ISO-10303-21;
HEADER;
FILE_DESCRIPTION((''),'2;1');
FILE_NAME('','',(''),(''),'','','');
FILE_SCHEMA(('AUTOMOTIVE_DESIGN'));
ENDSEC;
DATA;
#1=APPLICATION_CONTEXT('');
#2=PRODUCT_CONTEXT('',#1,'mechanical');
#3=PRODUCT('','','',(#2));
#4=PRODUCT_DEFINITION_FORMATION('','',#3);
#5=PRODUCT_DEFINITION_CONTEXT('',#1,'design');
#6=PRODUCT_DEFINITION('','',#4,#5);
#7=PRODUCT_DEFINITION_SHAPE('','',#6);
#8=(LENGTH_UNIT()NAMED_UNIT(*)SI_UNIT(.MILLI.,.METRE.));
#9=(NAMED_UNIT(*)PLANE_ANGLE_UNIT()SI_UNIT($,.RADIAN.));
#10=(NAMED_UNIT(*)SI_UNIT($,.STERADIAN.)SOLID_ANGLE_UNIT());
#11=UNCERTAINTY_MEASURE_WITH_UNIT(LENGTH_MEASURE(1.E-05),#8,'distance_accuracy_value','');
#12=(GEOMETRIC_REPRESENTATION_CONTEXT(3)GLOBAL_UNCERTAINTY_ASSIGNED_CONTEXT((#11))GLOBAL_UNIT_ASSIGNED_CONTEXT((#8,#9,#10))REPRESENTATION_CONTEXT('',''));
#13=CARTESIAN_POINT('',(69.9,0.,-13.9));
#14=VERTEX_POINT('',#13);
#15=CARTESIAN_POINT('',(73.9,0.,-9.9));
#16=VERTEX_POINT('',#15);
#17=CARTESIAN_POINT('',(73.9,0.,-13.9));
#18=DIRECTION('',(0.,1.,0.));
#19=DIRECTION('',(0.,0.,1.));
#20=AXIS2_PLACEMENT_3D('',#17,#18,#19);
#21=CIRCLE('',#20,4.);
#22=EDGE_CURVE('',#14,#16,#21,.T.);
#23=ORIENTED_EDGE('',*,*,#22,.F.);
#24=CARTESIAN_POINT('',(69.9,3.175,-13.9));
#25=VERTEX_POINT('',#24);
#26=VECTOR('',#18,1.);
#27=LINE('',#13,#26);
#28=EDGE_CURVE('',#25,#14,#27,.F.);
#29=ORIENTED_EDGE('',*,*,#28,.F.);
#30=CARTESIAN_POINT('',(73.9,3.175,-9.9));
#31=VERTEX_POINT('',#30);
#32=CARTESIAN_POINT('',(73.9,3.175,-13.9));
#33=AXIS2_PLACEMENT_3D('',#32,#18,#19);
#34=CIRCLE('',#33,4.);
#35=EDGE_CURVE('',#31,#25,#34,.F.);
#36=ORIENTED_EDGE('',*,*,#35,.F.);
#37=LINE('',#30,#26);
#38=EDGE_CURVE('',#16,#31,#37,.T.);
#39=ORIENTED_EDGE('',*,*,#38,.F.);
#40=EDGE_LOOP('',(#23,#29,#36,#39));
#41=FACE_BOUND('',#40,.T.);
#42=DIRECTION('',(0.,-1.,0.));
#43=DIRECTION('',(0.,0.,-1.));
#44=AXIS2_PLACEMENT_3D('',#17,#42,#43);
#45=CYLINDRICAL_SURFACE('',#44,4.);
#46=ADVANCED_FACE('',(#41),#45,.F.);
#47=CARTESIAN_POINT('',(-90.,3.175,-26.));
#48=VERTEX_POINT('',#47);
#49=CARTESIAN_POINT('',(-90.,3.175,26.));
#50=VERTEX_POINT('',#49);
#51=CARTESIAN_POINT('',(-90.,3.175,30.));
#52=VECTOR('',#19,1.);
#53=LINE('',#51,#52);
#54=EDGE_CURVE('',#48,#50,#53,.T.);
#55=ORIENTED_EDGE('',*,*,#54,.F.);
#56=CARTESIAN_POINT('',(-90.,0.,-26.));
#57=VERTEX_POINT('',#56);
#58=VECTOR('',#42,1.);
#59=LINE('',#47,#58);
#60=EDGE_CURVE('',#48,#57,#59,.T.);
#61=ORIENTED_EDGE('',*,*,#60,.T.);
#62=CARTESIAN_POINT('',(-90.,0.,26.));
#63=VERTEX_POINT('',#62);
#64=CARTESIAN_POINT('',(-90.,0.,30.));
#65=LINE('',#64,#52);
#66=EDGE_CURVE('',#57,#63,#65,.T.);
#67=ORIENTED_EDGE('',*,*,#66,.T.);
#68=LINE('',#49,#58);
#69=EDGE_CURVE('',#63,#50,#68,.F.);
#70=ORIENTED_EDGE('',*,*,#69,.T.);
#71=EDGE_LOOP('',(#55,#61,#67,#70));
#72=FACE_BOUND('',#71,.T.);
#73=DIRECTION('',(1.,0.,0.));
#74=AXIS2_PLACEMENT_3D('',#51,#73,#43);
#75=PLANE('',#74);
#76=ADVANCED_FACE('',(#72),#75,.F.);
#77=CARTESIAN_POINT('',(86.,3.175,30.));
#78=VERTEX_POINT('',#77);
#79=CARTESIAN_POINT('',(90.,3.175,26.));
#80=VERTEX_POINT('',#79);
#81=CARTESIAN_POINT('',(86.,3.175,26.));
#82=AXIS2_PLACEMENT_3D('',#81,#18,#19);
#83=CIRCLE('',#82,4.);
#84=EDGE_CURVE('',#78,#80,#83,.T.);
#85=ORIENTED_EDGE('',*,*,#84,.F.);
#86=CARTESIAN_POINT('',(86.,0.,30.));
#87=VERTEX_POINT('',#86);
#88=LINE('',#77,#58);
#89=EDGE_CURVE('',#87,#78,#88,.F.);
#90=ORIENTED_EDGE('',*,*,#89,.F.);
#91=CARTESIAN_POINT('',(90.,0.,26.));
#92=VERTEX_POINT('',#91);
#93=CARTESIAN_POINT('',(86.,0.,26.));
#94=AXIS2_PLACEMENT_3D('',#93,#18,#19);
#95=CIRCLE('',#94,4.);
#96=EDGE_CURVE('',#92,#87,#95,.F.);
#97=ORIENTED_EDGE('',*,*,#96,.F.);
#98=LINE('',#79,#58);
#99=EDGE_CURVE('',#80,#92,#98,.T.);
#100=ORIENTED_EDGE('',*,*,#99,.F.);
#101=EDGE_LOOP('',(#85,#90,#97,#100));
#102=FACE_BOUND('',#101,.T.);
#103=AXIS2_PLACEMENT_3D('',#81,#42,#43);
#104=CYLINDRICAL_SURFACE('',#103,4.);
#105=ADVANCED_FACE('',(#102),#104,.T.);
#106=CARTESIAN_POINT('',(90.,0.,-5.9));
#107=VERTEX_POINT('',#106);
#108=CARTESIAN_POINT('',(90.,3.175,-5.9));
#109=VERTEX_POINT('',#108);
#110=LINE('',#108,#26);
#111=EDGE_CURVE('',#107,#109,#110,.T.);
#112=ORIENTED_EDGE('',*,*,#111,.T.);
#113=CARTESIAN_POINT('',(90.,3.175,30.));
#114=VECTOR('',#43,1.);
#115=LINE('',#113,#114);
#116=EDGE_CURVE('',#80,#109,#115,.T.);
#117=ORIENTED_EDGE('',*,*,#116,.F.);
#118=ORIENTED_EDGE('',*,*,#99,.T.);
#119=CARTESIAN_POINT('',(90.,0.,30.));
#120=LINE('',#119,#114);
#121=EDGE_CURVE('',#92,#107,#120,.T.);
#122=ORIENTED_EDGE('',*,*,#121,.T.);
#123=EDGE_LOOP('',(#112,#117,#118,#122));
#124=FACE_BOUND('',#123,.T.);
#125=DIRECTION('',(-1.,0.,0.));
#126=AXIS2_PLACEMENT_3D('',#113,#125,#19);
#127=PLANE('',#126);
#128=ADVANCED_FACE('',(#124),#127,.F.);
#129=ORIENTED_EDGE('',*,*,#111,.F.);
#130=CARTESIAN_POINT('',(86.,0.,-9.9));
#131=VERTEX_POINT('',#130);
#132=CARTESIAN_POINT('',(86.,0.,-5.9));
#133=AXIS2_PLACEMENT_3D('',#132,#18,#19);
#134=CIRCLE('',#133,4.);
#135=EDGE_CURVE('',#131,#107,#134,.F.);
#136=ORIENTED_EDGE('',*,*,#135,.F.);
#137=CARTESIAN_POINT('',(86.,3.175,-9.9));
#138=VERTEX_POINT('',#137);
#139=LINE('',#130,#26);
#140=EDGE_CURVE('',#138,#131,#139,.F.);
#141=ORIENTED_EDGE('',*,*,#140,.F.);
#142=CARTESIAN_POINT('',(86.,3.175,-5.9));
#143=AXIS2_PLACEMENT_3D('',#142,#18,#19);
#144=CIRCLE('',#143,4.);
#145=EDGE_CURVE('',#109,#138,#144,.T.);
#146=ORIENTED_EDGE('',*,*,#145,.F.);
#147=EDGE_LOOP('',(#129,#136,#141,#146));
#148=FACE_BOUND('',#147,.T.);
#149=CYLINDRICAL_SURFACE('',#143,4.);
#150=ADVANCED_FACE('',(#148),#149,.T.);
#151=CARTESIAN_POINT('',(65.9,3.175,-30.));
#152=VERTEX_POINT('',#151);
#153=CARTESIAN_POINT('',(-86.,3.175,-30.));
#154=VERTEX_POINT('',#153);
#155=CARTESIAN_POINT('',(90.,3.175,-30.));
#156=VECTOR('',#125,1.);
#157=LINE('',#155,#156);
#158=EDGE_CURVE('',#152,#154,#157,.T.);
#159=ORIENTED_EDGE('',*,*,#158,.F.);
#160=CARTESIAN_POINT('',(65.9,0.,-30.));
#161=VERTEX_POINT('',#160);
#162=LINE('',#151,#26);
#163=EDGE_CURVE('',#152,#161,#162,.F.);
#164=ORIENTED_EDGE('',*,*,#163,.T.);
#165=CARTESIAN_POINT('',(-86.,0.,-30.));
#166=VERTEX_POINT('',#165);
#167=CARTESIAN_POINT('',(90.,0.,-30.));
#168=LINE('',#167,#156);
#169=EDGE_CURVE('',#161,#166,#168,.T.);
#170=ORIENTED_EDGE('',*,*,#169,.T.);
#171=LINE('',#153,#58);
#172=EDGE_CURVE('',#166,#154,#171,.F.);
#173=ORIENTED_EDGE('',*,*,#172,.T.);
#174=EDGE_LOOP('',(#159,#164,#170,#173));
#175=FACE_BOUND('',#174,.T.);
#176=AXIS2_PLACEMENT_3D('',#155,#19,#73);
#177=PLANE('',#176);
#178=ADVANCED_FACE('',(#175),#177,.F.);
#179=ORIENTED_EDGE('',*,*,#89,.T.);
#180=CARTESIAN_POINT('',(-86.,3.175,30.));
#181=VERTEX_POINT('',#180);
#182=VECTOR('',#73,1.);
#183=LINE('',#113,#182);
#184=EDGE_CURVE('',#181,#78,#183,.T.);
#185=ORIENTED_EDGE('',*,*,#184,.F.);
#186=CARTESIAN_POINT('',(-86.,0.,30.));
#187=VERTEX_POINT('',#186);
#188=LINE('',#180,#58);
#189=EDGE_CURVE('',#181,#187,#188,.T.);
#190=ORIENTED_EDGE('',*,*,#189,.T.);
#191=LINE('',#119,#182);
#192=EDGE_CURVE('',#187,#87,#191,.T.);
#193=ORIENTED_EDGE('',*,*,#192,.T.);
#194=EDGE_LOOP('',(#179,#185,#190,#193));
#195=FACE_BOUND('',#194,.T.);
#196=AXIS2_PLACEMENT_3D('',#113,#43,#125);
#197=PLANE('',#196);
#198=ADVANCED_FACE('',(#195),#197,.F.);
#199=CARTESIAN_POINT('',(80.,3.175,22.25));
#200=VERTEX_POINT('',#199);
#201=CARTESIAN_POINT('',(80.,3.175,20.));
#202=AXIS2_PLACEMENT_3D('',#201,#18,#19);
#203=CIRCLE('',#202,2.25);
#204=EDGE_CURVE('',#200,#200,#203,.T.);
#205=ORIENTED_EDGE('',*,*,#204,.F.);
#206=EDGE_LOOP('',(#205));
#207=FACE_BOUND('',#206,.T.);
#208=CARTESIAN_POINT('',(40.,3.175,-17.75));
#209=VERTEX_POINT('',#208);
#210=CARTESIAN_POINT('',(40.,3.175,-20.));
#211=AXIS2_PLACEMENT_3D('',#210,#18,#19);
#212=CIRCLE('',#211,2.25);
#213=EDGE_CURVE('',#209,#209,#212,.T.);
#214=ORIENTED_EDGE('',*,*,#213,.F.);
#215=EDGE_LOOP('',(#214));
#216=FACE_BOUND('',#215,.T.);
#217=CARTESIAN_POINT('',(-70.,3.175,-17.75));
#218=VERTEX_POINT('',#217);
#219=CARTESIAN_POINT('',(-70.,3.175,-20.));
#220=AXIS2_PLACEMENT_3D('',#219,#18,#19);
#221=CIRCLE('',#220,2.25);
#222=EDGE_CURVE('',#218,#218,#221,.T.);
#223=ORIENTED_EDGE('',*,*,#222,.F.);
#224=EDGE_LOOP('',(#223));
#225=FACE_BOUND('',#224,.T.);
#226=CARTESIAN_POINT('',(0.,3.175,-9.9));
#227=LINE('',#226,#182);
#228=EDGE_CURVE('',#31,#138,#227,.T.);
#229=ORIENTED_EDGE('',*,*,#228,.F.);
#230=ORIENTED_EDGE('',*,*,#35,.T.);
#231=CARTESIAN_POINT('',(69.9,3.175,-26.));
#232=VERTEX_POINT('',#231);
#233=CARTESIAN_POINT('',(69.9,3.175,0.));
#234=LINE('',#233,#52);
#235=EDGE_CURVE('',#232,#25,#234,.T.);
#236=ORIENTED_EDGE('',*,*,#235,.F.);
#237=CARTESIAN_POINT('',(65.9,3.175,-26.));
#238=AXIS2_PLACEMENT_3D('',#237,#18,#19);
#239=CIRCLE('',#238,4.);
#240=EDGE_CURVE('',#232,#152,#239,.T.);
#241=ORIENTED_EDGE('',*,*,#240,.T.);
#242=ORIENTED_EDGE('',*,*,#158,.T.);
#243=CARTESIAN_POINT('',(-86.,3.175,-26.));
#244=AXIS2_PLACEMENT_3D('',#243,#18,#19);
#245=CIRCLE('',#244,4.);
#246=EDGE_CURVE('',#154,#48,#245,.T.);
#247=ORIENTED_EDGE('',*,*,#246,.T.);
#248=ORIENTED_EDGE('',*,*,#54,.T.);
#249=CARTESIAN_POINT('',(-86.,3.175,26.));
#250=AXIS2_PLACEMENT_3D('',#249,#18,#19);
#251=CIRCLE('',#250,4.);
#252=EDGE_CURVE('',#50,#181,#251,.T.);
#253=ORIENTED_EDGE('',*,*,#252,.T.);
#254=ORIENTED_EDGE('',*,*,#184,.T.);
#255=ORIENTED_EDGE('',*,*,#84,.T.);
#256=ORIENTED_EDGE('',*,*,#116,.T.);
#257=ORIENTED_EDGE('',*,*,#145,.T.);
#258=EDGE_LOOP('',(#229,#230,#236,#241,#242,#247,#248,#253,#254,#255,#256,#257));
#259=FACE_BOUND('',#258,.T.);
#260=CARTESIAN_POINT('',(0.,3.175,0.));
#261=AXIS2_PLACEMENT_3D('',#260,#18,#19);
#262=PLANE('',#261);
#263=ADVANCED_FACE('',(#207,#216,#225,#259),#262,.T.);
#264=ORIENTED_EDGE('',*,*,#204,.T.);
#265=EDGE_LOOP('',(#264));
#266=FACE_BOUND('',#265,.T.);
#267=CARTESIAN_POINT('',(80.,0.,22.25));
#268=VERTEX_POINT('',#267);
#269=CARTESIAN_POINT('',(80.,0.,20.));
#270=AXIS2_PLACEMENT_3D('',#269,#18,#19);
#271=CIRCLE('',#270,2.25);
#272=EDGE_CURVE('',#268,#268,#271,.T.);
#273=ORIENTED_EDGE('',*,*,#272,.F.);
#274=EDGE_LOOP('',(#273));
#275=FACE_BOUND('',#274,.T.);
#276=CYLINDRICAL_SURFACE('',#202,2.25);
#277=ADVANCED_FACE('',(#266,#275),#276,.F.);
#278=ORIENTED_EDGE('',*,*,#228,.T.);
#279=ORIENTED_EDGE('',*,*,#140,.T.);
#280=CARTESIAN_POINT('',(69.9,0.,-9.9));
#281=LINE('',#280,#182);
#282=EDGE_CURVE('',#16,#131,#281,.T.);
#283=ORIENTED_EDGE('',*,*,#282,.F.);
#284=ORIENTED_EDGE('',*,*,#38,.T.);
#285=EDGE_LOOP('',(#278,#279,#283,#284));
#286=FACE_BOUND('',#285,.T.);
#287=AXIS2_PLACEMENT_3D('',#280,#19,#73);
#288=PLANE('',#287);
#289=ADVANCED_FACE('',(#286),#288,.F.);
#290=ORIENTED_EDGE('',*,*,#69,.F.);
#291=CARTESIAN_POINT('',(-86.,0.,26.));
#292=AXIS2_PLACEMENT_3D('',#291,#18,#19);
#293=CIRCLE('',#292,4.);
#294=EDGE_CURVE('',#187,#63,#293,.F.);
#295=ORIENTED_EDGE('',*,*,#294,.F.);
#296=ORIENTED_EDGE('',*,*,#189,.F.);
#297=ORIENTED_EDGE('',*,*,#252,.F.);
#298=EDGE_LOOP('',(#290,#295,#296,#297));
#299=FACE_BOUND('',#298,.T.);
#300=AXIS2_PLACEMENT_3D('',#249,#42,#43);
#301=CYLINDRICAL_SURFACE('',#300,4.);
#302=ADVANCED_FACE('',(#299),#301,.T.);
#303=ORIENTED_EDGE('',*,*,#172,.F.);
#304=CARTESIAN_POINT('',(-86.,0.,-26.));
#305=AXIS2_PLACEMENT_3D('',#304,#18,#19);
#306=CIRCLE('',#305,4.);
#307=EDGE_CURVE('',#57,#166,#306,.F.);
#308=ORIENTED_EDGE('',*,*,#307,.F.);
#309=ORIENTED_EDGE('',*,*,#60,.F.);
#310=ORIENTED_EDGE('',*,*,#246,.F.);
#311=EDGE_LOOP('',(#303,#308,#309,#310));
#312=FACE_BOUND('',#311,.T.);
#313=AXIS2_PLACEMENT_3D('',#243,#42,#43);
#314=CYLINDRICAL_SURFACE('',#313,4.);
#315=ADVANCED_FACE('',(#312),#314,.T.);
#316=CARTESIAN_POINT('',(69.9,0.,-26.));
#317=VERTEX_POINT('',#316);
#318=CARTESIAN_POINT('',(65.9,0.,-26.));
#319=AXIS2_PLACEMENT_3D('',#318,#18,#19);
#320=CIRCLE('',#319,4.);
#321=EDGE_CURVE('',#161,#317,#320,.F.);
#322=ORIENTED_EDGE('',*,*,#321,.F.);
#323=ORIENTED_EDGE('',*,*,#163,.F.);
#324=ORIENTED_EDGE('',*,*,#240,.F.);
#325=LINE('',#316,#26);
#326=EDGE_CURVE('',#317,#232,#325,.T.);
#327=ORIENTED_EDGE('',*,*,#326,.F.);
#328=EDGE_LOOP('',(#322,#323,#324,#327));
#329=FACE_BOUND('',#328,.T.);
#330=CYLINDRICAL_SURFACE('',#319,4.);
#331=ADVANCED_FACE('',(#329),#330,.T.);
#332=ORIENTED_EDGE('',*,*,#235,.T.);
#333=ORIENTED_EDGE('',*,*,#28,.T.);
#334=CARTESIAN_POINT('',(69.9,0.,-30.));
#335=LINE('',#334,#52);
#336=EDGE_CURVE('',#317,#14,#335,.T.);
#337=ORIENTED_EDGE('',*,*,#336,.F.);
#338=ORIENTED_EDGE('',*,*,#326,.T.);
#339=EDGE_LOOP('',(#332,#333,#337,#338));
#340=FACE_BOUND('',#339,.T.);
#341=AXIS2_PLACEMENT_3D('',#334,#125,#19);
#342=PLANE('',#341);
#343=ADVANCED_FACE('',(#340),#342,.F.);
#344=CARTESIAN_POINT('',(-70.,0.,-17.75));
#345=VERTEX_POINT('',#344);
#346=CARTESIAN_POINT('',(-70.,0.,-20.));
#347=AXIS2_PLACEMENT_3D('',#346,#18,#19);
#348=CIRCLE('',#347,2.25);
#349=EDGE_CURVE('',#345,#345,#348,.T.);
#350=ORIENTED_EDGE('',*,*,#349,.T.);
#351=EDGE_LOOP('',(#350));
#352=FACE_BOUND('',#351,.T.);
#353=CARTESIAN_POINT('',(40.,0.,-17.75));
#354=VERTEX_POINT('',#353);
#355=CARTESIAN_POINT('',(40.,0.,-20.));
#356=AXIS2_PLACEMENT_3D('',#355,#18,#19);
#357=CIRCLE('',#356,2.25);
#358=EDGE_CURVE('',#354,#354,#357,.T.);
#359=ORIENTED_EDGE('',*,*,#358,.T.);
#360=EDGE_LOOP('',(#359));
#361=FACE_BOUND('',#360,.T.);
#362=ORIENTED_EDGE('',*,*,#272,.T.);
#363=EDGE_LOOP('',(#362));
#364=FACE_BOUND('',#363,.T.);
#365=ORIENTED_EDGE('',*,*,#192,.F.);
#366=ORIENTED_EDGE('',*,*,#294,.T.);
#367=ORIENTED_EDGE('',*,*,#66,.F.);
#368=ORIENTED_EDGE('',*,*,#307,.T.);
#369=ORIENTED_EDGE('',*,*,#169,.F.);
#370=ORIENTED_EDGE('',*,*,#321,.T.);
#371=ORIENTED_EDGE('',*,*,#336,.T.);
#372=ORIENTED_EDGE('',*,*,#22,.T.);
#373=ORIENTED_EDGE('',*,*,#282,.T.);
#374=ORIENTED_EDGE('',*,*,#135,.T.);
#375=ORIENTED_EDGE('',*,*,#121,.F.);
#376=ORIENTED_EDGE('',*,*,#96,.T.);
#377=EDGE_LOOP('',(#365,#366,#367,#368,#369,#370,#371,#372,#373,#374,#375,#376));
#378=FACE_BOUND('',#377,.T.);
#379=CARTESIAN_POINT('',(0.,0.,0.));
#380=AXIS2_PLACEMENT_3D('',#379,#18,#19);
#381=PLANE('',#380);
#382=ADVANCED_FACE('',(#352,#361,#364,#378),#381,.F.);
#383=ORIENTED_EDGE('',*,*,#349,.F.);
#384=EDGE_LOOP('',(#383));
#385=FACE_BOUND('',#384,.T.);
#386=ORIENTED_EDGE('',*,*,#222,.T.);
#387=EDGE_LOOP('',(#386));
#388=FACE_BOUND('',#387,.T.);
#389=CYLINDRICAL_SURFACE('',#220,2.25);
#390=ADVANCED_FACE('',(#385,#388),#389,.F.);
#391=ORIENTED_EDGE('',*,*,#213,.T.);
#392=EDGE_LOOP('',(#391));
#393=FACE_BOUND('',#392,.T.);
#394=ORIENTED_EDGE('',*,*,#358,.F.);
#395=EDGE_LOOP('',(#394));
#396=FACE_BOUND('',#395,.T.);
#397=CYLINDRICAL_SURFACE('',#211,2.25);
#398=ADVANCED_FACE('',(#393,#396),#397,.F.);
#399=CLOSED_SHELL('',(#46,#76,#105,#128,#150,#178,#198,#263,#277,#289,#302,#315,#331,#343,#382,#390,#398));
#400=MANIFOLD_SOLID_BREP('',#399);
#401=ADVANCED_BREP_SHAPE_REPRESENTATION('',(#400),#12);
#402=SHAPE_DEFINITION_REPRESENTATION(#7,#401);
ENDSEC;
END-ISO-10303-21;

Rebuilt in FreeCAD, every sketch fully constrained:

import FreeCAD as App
import Part
import Sketcher
from FreeCAD import Vector
Q = App.Units.Quantity


def edges_at(feature, points):
    """Names of the edges that pass closest to the given points."""
    edges = feature.Shape.Edges
    near = lambda p: min(range(len(edges)), key=lambda i: edges[i].distToShape(Part.Vertex(*p))[0])
    return sorted({f"Edge{near(p) + 1}" for p in points})

doc = App.newDocument("Part")
body = doc.addObject("PartDesign::Body", "Body")

sketch1 = body.newObject("Sketcher::SketchObject", "Sketch")
sketch1.AttachmentSupport = (doc.getObject("XZ_Plane"), [""])
sketch1.MapMode = "FlatFace"
sketch1.addGeometry(Part.LineSegment(Vector(-90, -30, 0), Vector(-90, 30, 0)), False)
sketch1.addGeometry(Part.LineSegment(Vector(-90, 30, 0), Vector(90, 30, 0)), False)
sketch1.addGeometry(Part.LineSegment(Vector(90, 30, 0), Vector(90, -30, 0)), False)
sketch1.addGeometry(Part.LineSegment(Vector(90, -30, 0), Vector(-90, -30, 0)), False)
sketch1.addConstraint(Sketcher.Constraint("Coincident", 0, 2, 1, 1))
sketch1.addConstraint(Sketcher.Constraint("Coincident", 1, 2, 2, 1))
sketch1.addConstraint(Sketcher.Constraint("Coincident", 2, 2, 3, 1))
sketch1.addConstraint(Sketcher.Constraint("Coincident", 3, 2, 0, 1))
sketch1.addConstraint(Sketcher.Constraint("Vertical", 0))
sketch1.addConstraint(Sketcher.Constraint("Horizontal", 1))
sketch1.addConstraint(Sketcher.Constraint("Vertical", 2))
sketch1.addConstraint(Sketcher.Constraint("Horizontal", 3))
sketch1.addConstraint(Sketcher.Constraint("Symmetric", 0, 2, 2, 2, -1, 1))
sketch1.addConstraint(Sketcher.Constraint("DistanceX", 1, 1, 1, 2, Q("180 mm")))
sketch1.addConstraint(Sketcher.Constraint("DistanceY", 0, 1, 0, 2, Q("60 mm")))
pad1 = body.newObject("PartDesign::Pad", "Pad")
pad1.Profile = sketch1
pad1.Length = 3.175
pad1.Reversed = True

sketch2 = body.newObject("Sketcher::SketchObject", "Sketch001")
sketch2.AttachmentSupport = (doc.getObject("XZ_Plane"), [""])
sketch2.MapMode = "FlatFace"
sketch2.AttachmentOffset = App.Placement(Vector(0, 0, -3.175), App.Rotation())
sketch2.addGeometry(Part.LineSegment(Vector(70, -30, 0), Vector(70, -10, 0)), False)
sketch2.addGeometry(Part.LineSegment(Vector(70, -10, 0), Vector(90, -10, 0)), False)
sketch2.addGeometry(Part.LineSegment(Vector(90, -10, 0), Vector(90, -30, 0)), False)
sketch2.addGeometry(Part.LineSegment(Vector(90, -30, 0), Vector(70, -30, 0)), False)
sketch2.addConstraint(Sketcher.Constraint("Coincident", 0, 2, 1, 1))
sketch2.addConstraint(Sketcher.Constraint("Coincident", 1, 2, 2, 1))
sketch2.addConstraint(Sketcher.Constraint("Coincident", 2, 2, 3, 1))
sketch2.addConstraint(Sketcher.Constraint("Coincident", 3, 2, 0, 1))
sketch2.addConstraint(Sketcher.Constraint("Vertical", 0))
sketch2.addConstraint(Sketcher.Constraint("Horizontal", 1))
sketch2.addConstraint(Sketcher.Constraint("Vertical", 2))
sketch2.addConstraint(Sketcher.Constraint("Horizontal", 3))
sketch2.addConstraint(Sketcher.Constraint("Equal", 3, 0))
sketch2.addConstraint(Sketcher.Constraint("DistanceX", 1, 1, 1, 2, Q("20.1 mm")))
sketch2.addConstraint(Sketcher.Constraint("DistanceX", -1, 1, 1, 2, Q("90 mm")))
sketch2.addConstraint(Sketcher.Constraint("DistanceY", 2, 2, -1, 1, Q("30 mm")))
pocket1 = body.newObject("PartDesign::Pocket", "Pocket")
pocket1.Profile = sketch2
pocket1.Type = "ThroughAll"
pocket1.Midplane = True

sketch3 = body.newObject("Sketcher::SketchObject", "Sketch002")
sketch3.AttachmentSupport = (doc.getObject("XZ_Plane"), [""])
sketch3.MapMode = "FlatFace"
sketch3.AttachmentOffset = App.Placement(Vector(0, 0, -3.175), App.Rotation())
sketch3.addGeometry(Part.Circle(Vector(-70, -20, 0), Vector(0, 0, 1), 2.2), False)
sketch3.addGeometry(Part.Circle(Vector(40, -20, 0), Vector(0, 0, 1), 2.2), False)
sketch3.addGeometry(Part.Circle(Vector(80, 20, 0), Vector(0, 0, 1), 2.2), False)
sketch3.addConstraint(Sketcher.Constraint("Equal", 0, 1))
sketch3.addConstraint(Sketcher.Constraint("Equal", 1, 2))
sketch3.addConstraint(Sketcher.Constraint("Horizontal", 0, 3, 1, 3))
sketch3.addConstraint(Sketcher.Constraint("Diameter", 0, Q("4.5 mm")))
sketch3.addConstraint(Sketcher.Constraint("DistanceX", 0, 3, -1, 1, Q("70 mm")))
sketch3.addConstraint(Sketcher.Constraint("DistanceY", 0, 3, -1, 1, Q("20 mm")))
sketch3.addConstraint(Sketcher.Constraint("DistanceX", -1, 1, 1, 3, Q("40 mm")))
sketch3.addConstraint(Sketcher.Constraint("DistanceX", -1, 1, 2, 3, Q("80 mm")))
sketch3.addConstraint(Sketcher.Constraint("DistanceY", -1, 1, 2, 3, Q("20 mm")))
doc.recompute()
hole = body.newObject("PartDesign::Hole", "Hole")
hole.Profile = sketch3
hole.ThreadType = "None"
hole.Diameter = 4.5
hole.DepthType = "ThroughAll"
hole.Reversed = True
doc.recompute()

fillet = body.newObject("PartDesign::Fillet", "Fillet")
fillet.Base = (hole, edges_at(hole, [
    (69.9, 1.587, -9.9),
    (69.9, 1.587, -30),
    (90, 1.587, -9.9),
    (-90, 1.587, -30),
    (90, 1.587, 30),
    (-90, 1.587, 30),
]))
fillet.Radius = 4

doc.recompute()
